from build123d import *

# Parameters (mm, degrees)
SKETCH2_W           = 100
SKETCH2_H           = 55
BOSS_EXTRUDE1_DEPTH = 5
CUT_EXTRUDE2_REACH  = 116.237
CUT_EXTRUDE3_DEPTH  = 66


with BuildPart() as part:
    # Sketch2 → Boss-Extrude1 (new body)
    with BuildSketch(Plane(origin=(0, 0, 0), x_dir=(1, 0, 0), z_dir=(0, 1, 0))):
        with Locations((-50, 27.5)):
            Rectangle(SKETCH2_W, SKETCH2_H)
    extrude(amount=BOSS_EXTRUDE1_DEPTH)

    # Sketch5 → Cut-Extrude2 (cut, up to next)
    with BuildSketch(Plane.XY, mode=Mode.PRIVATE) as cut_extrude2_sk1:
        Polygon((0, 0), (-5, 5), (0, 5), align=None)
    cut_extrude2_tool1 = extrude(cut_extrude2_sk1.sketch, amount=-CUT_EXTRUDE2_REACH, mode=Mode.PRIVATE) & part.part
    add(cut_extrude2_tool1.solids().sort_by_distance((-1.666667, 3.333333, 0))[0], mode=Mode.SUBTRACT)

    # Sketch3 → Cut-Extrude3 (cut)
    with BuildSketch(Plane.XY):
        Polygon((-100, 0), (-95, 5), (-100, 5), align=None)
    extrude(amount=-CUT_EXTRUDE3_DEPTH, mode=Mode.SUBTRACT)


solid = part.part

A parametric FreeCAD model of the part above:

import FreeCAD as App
import Part
import Sketcher
from FreeCAD import Vector
Q = App.Units.Quantity


def add_polygon(sketch, points):
    """Adds a closed chain of lines whose ends are joined by coincident constraints."""
    first, n = sketch.GeometryCount, len(points)
    for a, b in zip(points, points[1:] + points[:1]):
        sketch.addGeometry(Part.LineSegment(App.Vector(*a, 0), App.Vector(*b, 0)), False)
    for i in range(n):
        sketch.addConstraint(Sketcher.Constraint("Coincident", first + i, 2, first + (i + 1) % n, 1))

doc = App.newDocument("Part")
params = doc.addObject("Spreadsheet::Sheet", "Params")
for row, (alias, value) in enumerate([
    ("sketch1_width", "100 mm"),
    ("sketch1_height", "55 mm"),
    ("pad1_length", "5 mm"),
    ("sketch2_width", "5 mm"),
    ("sketch3_width", "5 mm"),
    ("pocket2_length", "66 mm"),
], start=1):
    params.set(f"A{row}", alias)
    params.set(f"B{row}", "=" + value)
    params.setAlias(f"B{row}", alias)

body = doc.addObject("PartDesign::Body", "Body")

# Sketch on XZ plane
sketch1 = doc.addObject("Sketcher::SketchObject", "Sketch")
body.addObject(sketch1)
sketch1.AttachmentSupport = (doc.XZ_Plane, [""])
sketch1.MapMode = "FlatFace"
add_polygon(sketch1, [(-100, -55), (-100, 0), (0, 0), (0, -55)])  # lines 0-3
sketch1.addConstraint([
    Sketcher.Constraint("Vertical", 0),
    Sketcher.Constraint("Horizontal", 1),
    Sketcher.Constraint("Vertical", 2),
    Sketcher.Constraint("Horizontal", 3),
    Sketcher.Constraint("Coincident", 1, 2, -1, 1),
    Sketcher.Constraint("DistanceX", 1, 1, 1, 2, Q("100 mm")),
    Sketcher.Constraint("DistanceY", 0, 1, 0, 2, Q("55 mm")),
])
sketch1.setExpression("Constraints[9]", "Params.sketch1_width")
sketch1.setExpression("Constraints[10]", "Params.sketch1_height")
pad1 = doc.addObject("PartDesign::Pad", "Pad")
body.addObject(pad1)
pad1.Profile = sketch1
pad1.setExpression("Length", "Params.pad1_length")
pad1.Reversed = True

# Sketch on XY plane
sketch2 = doc.addObject("Sketcher::SketchObject", "Sketch001")
body.addObject(sketch2)
sketch2.AttachmentSupport = (doc.XY_Plane, [""])
sketch2.MapMode = "FlatFace"
add_polygon(sketch2, [(-5, 5), (0, 0), (0, 5)])  # lines 0-2
sketch2.addConstraint([
    Sketcher.Constraint("Vertical", 1),
    Sketcher.Constraint("Horizontal", 2),
    Sketcher.Constraint("Coincident", 0, 2, -1, 1),
    Sketcher.Constraint("Equal", 2, 1),
    Sketcher.Constraint("DistanceX", 2, 2, 2, 1, Q("5 mm")),
])
sketch2.setExpression("Constraints[7]", "Params.sketch2_width")
pocket1 = doc.addObject("PartDesign::Pocket", "Pocket")
body.addObject(pocket1)
pocket1.Profile = sketch2
pocket1.Type = "UpToFirst"

# Sketch on XY plane
sketch3 = doc.addObject("Sketcher::SketchObject", "Sketch002")
body.addObject(sketch3)
sketch3.AttachmentSupport = (doc.XY_Plane, [""])
sketch3.MapMode = "FlatFace"
add_polygon(sketch3, [(-100, 0), (-95, 5), (-100, 5)])  # lines 0-2
sketch3.addConstraint([
    Sketcher.Constraint("Horizontal", 1),
    Sketcher.Constraint("Vertical", 2),
    Sketcher.Constraint("PointOnObject", 2, 2, -1),
    Sketcher.Constraint("Equal", 1, 2),
    Sketcher.Constraint("DistanceX", 1, 2, 1, 1, Q("5 mm")),
    Sketcher.Constraint("DistanceX", 0, 2, -1, 1, Q("95 mm")),
])
sketch3.setExpression("Constraints[7]", "Params.sketch3_width")
pocket2 = doc.addObject("PartDesign::Pocket", "Pocket001")
body.addObject(pocket2)
pocket2.Profile = sketch3
pocket2.setExpression("Length", "Params.pocket2_length")

doc.recompute()
